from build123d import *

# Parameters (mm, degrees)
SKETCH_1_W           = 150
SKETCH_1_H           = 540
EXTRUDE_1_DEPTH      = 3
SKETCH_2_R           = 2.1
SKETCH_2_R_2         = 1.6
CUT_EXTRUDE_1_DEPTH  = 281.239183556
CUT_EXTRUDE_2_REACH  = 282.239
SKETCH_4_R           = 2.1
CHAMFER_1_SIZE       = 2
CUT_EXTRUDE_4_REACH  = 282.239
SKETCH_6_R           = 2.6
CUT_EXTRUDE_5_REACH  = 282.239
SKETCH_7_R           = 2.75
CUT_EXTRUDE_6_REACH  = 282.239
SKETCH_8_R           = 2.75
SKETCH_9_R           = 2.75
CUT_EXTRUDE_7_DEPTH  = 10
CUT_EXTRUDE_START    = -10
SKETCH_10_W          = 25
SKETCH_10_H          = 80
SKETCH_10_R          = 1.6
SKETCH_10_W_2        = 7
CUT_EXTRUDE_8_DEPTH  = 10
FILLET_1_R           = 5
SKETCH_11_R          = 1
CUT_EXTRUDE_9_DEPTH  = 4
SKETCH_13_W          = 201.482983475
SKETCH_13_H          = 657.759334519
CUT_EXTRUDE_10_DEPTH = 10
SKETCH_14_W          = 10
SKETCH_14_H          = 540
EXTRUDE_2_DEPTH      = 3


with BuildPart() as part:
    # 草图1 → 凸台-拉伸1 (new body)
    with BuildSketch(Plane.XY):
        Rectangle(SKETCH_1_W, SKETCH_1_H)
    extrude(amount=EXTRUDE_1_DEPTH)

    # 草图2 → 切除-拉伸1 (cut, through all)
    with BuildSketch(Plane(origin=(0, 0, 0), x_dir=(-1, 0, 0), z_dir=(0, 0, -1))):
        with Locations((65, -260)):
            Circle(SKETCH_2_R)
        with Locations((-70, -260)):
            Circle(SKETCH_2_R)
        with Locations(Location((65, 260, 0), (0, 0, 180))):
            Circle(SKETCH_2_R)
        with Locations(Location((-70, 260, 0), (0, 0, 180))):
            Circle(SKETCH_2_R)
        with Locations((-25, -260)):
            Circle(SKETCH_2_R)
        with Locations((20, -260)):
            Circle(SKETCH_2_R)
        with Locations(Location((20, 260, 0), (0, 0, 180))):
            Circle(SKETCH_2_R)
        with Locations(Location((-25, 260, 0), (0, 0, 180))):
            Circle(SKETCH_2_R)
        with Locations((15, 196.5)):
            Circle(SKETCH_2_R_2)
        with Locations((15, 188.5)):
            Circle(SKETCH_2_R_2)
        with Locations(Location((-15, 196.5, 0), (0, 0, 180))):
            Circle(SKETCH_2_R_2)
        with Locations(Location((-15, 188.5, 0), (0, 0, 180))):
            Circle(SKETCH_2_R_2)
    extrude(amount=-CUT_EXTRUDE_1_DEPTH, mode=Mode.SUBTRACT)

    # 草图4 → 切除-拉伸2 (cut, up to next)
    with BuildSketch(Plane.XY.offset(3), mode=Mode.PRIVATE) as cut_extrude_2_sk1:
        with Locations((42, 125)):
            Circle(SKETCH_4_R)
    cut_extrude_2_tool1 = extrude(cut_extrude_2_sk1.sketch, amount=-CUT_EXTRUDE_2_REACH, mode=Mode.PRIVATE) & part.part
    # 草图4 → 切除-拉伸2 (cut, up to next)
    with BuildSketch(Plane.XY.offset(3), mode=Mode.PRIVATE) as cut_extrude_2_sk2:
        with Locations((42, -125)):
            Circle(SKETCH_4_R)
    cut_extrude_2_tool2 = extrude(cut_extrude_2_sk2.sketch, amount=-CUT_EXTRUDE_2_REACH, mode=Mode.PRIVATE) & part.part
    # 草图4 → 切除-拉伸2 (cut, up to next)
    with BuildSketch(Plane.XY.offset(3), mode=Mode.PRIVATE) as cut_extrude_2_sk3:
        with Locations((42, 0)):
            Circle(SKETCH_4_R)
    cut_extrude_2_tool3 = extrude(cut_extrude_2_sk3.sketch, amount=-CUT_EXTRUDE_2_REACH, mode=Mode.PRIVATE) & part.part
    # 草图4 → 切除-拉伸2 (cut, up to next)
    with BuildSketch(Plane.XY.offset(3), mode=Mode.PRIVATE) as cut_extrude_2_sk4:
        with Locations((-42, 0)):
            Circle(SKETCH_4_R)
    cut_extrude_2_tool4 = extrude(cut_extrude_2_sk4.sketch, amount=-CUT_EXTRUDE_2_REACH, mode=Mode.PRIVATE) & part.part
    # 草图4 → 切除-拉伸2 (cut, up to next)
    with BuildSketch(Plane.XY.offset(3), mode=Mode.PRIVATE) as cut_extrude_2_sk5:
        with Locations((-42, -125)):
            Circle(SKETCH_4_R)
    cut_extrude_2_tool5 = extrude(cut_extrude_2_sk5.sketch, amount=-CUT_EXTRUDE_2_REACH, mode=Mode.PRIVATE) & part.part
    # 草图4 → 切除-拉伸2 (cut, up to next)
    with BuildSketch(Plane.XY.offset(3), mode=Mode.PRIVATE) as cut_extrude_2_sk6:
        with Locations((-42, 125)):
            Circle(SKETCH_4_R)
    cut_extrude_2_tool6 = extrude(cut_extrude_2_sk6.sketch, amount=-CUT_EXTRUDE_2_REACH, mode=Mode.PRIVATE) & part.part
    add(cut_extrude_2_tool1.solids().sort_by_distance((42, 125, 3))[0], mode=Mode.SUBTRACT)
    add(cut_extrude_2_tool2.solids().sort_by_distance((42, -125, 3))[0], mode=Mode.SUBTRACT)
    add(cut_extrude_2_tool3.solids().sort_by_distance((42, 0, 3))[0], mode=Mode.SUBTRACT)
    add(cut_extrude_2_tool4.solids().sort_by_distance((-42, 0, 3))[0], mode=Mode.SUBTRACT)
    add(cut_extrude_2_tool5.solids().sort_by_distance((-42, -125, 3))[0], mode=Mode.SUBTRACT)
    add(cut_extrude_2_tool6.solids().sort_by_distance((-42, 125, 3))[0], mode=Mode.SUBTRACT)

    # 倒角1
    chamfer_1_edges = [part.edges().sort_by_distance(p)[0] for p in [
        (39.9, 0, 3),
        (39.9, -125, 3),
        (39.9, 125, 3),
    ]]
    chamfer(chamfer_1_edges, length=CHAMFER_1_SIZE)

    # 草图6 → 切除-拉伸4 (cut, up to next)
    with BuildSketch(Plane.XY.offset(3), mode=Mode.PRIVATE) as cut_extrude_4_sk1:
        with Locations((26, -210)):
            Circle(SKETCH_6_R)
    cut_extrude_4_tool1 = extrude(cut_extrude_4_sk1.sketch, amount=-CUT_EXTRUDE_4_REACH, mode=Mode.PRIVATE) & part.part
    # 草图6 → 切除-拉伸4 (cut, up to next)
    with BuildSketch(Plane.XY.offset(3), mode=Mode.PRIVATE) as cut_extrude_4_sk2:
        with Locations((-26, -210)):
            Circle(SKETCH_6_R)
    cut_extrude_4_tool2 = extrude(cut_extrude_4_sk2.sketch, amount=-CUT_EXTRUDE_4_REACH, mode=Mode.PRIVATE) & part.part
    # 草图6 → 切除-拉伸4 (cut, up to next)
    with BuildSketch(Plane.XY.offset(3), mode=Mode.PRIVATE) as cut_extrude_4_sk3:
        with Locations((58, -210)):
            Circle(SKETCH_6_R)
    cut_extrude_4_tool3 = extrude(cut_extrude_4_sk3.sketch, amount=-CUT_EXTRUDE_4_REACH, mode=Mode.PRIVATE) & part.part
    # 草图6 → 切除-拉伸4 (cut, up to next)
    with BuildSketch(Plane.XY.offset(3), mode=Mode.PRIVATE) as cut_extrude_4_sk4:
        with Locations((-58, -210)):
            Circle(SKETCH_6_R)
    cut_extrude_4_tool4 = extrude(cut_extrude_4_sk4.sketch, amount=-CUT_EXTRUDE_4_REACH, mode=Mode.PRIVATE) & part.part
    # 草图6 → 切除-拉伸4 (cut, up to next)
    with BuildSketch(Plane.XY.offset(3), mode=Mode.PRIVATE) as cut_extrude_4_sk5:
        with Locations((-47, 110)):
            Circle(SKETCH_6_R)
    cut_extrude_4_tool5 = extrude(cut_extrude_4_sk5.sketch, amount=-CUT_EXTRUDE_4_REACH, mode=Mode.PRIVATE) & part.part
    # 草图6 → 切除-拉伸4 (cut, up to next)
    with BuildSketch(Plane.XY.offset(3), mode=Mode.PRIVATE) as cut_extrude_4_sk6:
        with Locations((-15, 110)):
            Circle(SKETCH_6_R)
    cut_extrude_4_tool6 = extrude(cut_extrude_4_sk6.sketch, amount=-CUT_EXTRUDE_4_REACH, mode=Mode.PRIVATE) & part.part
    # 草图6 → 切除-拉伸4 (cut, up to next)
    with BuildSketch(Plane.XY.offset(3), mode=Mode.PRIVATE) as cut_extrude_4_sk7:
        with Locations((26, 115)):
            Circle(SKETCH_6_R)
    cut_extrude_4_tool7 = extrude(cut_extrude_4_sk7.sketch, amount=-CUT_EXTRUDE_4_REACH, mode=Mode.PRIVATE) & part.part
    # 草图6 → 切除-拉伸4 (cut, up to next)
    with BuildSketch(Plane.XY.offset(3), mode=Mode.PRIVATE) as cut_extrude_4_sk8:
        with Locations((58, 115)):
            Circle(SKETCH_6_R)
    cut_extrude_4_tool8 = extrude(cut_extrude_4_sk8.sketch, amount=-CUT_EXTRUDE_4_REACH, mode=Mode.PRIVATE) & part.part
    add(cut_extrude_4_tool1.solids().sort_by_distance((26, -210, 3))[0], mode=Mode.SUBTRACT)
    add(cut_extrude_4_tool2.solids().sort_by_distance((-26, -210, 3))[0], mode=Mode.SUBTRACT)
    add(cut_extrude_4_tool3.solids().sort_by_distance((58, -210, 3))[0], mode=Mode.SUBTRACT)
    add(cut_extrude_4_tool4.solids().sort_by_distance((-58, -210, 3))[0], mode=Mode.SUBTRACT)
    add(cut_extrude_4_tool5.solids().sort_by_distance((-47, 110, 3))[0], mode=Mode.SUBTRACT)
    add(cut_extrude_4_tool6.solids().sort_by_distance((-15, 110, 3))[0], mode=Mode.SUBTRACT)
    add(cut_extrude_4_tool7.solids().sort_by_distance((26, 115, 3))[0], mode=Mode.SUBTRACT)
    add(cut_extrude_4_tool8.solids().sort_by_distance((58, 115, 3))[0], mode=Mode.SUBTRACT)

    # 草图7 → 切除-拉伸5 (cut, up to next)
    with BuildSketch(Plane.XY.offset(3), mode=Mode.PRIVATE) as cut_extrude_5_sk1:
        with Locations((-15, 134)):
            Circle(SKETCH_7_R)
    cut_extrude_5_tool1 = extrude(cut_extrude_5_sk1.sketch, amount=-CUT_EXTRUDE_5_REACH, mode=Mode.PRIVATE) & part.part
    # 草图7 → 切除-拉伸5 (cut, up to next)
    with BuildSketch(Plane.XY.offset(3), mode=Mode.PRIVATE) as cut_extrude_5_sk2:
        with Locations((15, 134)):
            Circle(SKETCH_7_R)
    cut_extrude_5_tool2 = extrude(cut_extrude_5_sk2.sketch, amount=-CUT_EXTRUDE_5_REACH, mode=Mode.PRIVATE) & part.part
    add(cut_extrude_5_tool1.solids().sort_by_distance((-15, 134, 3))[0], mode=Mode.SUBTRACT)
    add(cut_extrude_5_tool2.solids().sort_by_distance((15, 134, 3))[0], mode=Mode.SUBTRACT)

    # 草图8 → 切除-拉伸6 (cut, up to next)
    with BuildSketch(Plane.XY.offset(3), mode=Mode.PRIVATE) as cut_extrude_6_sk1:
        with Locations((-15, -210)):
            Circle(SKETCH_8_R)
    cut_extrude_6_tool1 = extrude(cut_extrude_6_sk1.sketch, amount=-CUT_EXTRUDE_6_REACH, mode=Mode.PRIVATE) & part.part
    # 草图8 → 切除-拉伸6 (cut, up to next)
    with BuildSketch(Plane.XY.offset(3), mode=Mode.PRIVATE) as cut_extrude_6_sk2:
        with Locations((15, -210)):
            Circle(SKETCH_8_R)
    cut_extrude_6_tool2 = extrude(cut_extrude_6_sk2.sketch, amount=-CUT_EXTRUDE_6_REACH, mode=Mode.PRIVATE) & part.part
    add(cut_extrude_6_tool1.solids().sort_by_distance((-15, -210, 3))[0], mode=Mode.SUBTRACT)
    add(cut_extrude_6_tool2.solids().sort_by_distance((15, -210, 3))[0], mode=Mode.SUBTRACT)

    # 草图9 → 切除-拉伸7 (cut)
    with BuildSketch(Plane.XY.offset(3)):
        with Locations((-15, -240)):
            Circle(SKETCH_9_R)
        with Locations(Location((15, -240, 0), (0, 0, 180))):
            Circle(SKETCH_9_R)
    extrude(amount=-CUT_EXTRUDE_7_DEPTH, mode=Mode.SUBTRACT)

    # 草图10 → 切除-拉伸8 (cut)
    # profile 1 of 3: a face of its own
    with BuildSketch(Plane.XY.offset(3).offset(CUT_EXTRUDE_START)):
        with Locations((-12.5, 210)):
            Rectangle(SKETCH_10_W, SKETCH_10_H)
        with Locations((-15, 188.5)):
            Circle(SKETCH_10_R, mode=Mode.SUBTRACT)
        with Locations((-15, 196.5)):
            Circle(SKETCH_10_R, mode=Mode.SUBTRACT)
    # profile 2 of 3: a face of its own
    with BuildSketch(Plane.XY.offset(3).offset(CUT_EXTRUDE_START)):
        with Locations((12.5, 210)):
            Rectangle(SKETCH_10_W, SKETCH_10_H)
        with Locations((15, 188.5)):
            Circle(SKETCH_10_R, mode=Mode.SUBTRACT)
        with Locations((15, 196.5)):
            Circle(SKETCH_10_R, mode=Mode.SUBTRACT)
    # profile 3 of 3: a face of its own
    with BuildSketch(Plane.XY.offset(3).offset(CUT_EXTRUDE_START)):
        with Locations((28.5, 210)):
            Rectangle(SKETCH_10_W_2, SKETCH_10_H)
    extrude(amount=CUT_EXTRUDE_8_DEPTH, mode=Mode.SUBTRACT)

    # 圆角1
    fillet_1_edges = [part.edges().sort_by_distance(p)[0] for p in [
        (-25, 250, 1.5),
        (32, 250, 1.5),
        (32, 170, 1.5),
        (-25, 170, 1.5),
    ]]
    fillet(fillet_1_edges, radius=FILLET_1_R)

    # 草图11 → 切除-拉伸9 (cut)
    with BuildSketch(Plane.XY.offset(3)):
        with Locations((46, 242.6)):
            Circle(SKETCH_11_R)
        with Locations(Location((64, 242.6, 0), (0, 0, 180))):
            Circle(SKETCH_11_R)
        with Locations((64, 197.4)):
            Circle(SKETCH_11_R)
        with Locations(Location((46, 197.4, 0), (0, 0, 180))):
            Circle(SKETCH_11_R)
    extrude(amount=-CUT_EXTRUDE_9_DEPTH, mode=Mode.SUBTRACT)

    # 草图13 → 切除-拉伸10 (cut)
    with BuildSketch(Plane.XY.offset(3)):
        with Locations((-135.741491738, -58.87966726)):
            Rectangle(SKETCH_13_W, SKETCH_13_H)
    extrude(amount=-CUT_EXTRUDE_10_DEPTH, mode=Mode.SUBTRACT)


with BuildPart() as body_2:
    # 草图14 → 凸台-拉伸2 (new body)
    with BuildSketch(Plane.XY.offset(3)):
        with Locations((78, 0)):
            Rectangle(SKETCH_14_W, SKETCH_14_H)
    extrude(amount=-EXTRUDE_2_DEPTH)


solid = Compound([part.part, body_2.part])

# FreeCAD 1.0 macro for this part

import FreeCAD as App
import Part
import Sketcher
from FreeCAD import Vector
Q = App.Units.Quantity


def edges_at(feature, points):
    """Names of the edges that pass closest to the given points."""
    edges = feature.Shape.Edges
    near = lambda p: min(range(len(edges)), key=lambda i: edges[i].distToShape(Part.Vertex(*p))[0])
    return sorted({f"Edge{near(p) + 1}" for p in points})

doc = App.newDocument("Part")
params = doc.addObject("Spreadsheet::Sheet", "Params")
for row, (alias, value) in enumerate([
    ("sketch1_width", "150 mm"),
    ("sketch1_height", "540 mm"),
    ("pad1_length", "3 mm"),
    ("sketch2_diameter", "4.2 mm"),
    ("sketch2_diameter2", "3.2 mm"),
    ("sketch3_diameter", "4.2 mm"),
    ("sketch4_diameter", "4.2 mm"),
    ("sketch5_diameter", "4.2 mm"),
    ("sketch6_diameter", "4.2 mm"),
    ("sketch7_diameter", "4.2 mm"),
    ("sketch8_diameter", "4.2 mm"),
    ("chamfer_size", "2 mm"),
    ("sketch9_diameter", "5.2 mm"),
    ("sketch10_diameter", "5.2 mm"),
    ("sketch11_diameter", "5.2 mm"),
    ("sketch12_diameter", "5.2 mm"),
    ("sketch13_diameter", "5.2 mm"),
    ("sketch14_diameter", "5.2 mm"),
    ("sketch15_diameter", "5.2 mm"),
    ("sketch16_diameter", "5.2 mm"),
    ("sketch17_diameter", "5.5 mm"),
    ("sketch18_diameter", "5.5 mm"),
    ("sketch19_diameter", "5.5 mm"),
    ("sketch20_diameter", "5.5 mm"),
    ("sketch21_diameter", "5.5 mm"),
    ("pocket20_length", "10 mm"),
    ("sketch22_diameter", "3.2 mm"),
    ("sketch22_width", "57 mm"),
    ("sketch22_height", "80 mm"),
    ("pocket21_length", "10 mm"),
    ("fillet_radius", "5 mm"),
    ("sketch23_diameter", "2 mm"),
    ("pocket22_length", "4 mm"),
    ("pocket23_length", "10 mm"),
    ("sketch25_width", "10 mm"),
    ("sketch25_height", "540 mm"),
    ("pad2_length", "3 mm"),
], start=1):
    params.set(f"A{row}", alias)
    params.set(f"B{row}", "=" + value)
    params.setAlias(f"B{row}", alias)

body = doc.addObject("PartDesign::Body", "Body")

# Sketch on XY plane
sketch1 = body.newObject("Sketcher::SketchObject", "Sketch")
sketch1.AttachmentSupport = (doc.getObject("XY_Plane"), [""])
sketch1.MapMode = "FlatFace"
sketch1.addGeometry([
    Part.LineSegment(Vector(-75, 270, 0), Vector(-75, -270, 0)),
    Part.LineSegment(Vector(-75, -270, 0), Vector(75, -270, 0)),
    Part.LineSegment(Vector(75, -270, 0), Vector(75, 270, 0)),
    Part.LineSegment(Vector(75, 270, 0), Vector(-75, 270, 0)),
], False)
sketch1.addConstraint([
    Sketcher.Constraint("Coincident", 0, 2, 1, 1),
    Sketcher.Constraint("Coincident", 1, 2, 2, 1),
    Sketcher.Constraint("Coincident", 2, 2, 3, 1),
    Sketcher.Constraint("Coincident", 3, 2, 0, 1),
    Sketcher.Constraint("Vertical", 0),
    Sketcher.Constraint("Horizontal", 1),
    Sketcher.Constraint("Vertical", 2),
    Sketcher.Constraint("Horizontal", 3),
    Sketcher.Constraint("Symmetric", 0, 2, 2, 2, -1, 1),
    Sketcher.Constraint("DistanceX", 1, 1, 1, 2, Q("150 mm")),
    Sketcher.Constraint("DistanceY", 0, 2, 0, 1, Q("540 mm")),
])
sketch1.setExpression("Constraints[9]", "Params.sketch1_width")
sketch1.setExpression("Constraints[10]", "Params.sketch1_height")
pad1 = body.newObject("PartDesign::Pad", "Pad")
pad1.Profile = sketch1
pad1.setExpression("Length", "Params.pad1_length")

# Sketch on XY plane
sketch2 = body.newObject("Sketcher::SketchObject", "Sketch001")
sketch2.AttachmentSupport = (doc.getObject("XY_Plane"), [""])
sketch2.MapMode = "FlatFace"
sketch2.addGeometry([
    Part.Circle(Vector(-65, -260, 0), Vector(0, 0, 1), 2.1),  # 0
    Part.Circle(Vector(70, -260, 0), Vector(0, 0, 1), 2.1),  # 1
    Part.Circle(Vector(-65, 260, 0), Vector(0, 0, 1), 2.1),  # 2
    Part.Circle(Vector(70, 260, 0), Vector(0, 0, 1), 2.1),  # 3
    Part.Circle(Vector(25, -260, 0), Vector(0, 0, 1), 2.1),  # 4
    Part.Circle(Vector(-20, -260, 0), Vector(0, 0, 1), 2.1),  # 5
    Part.Circle(Vector(-20, 260, 0), Vector(0, 0, 1), 2.1),  # 6
    Part.Circle(Vector(25, 260, 0), Vector(0, 0, 1), 2.1),  # 7
    Part.Circle(Vector(-15, 196.5, 0), Vector(0, 0, 1), 1.6),  # 8
    Part.Circle(Vector(-15, 188.5, 0), Vector(0, 0, 1), 1.6),  # 9
    Part.Circle(Vector(15, 196.5, 0), Vector(0, 0, 1), 1.6),  # 10
    Part.Circle(Vector(15, 188.5, 0), Vector(0, 0, 1), 1.6),  # 11
], False)
sketch2.addConstraint([
    Sketcher.Constraint("Equal", 0, 1),
    Sketcher.Constraint("Equal", 1, 2),
    Sketcher.Constraint("Equal", 2, 3),
    Sketcher.Constraint("Equal", 3, 4),
    Sketcher.Constraint("Equal", 4, 5),
    Sketcher.Constraint("Equal", 5, 6),
    Sketcher.Constraint("Equal", 6, 7),
    Sketcher.Constraint("Equal", 8, 9),
    Sketcher.Constraint("Equal", 9, 10),
    Sketcher.Constraint("Equal", 10, 11),
    Sketcher.Constraint("Symmetric", 8, 3, 10, 3, -2),
    Sketcher.Constraint("Symmetric", 9, 3, 11, 3, -2),
    Sketcher.Constraint("Symmetric", 0, 3, 2, 3, -1),
    Sketcher.Constraint("Symmetric", 1, 3, 3, 3, -1),
    Sketcher.Constraint("Symmetric", 5, 3, 6, 3, -1),
    Sketcher.Constraint("Symmetric", 4, 3, 7, 3, -1),
    Sketcher.Constraint("Horizontal", 0, 3, 1, 3),
    Sketcher.Constraint("Horizontal", 1, 3, 4, 3),
    Sketcher.Constraint("Horizontal", 4, 3, 5, 3),
    Sketcher.Constraint("Vertical", 8, 3, 9, 3),
    Sketcher.Constraint("Diameter", 0, Q("4.2 mm")),
    Sketcher.Constraint("Diameter", 8, Q("3.2 mm")),
    Sketcher.Constraint("DistanceX", 0, 3, -1, 1, Q("65 mm")),
    Sketcher.Constraint("DistanceY", 0, 3, -1, 1, Q("260 mm")),
    Sketcher.Constraint("DistanceX", -1, 1, 1, 3, Q("70 mm")),
    Sketcher.Constraint("DistanceX", -1, 1, 4, 3, Q("25 mm")),
    Sketcher.Constraint("DistanceX", 5, 3, -1, 1, Q("20 mm")),
    Sketcher.Constraint("DistanceX", 8, 3, -1, 1, Q("15 mm")),
    Sketcher.Constraint("DistanceY", 9, 3, 8, 3, Q("8 mm")),
    Sketcher.Constraint("DistanceY", -1, 1, 8, 3, Q("196.5 mm")),
])
sketch2.setExpression("Constraints[20]", "Params.sketch2_diameter")
sketch2.setExpression("Constraints[21]", "Params.sketch2_diameter2")
pocket1 = body.newObject("PartDesign::Pocket", "Pocket")
pocket1.Profile = sketch2
pocket1.Type = "ThroughAll"
pocket1.Reversed = True

# Sketch on XY plane
sketch3 = body.newObject("Sketcher::SketchObject", "Sketch002")
sketch3.AttachmentSupport = (doc.getObject("XY_Plane"), [""])
sketch3.MapMode = "FlatFace"
sketch3.AttachmentOffset = App.Placement(Vector(0, 0, 3), App.Rotation())
sketch3.addGeometry(Part.Circle(Vector(42, 125, 0), Vector(0, 0, 1), 2.1), False)
sketch3.addConstraint([
    Sketcher.Constraint("Diameter", 0, Q("4.2 mm")),
    Sketcher.Constraint("DistanceX", -1, 1, 0, 3, Q("42 mm")),
    Sketcher.Constraint("DistanceY", -1, 1, 0, 3, Q("125 mm")),
])
sketch3.setExpression("Constraints[0]", "Params.sketch3_diameter")
pocket2 = body.newObject("PartDesign::Pocket", "Pocket001")
pocket2.Profile = sketch3
pocket2.Type = "UpToFirst"

# Sketch on XY plane
sketch4 = body.newObject("Sketcher::SketchObject", "Sketch003")
sketch4.AttachmentSupport = (doc.getObject("XY_Plane"), [""])
sketch4.MapMode = "FlatFace"
sketch4.AttachmentOffset = App.Placement(Vector(0, 0, 3), App.Rotation())
sketch4.addGeometry(Part.Circle(Vector(42, -125, 0), Vector(0, 0, 1), 2.1), False)
sketch4.addConstraint([
    Sketcher.Constraint("Diameter", 0, Q("4.2 mm")),
    Sketcher.Constraint("DistanceX", -1, 1, 0, 3, Q("42 mm")),
    Sketcher.Constraint("DistanceY", 0, 3, -1, 1, Q("125 mm")),
])
sketch4.setExpression("Constraints[0]", "Params.sketch4_diameter")
pocket3 = body.newObject("PartDesign::Pocket", "Pocket002")
pocket3.Profile = sketch4
pocket3.Type = "UpToFirst"

# Sketch on XY plane
sketch5 = body.newObject("Sketcher::SketchObject", "Sketch004")
sketch5.AttachmentSupport = (doc.getObject("XY_Plane"), [""])
sketch5.MapMode = "FlatFace"
sketch5.AttachmentOffset = App.Placement(Vector(0, 0, 3), App.Rotation())
sketch5.addGeometry(Part.Circle(Vector(42, 0, 0), Vector(0, 0, 1), 2.1), False)
sketch5.addConstraint([
    Sketcher.Constraint("PointOnObject", 0, 3, -1),
    Sketcher.Constraint("Diameter", 0, Q("4.2 mm")),
    Sketcher.Constraint("DistanceX", -1, 1, 0, 3, Q("42 mm")),
])
sketch5.setExpression("Constraints[1]", "Params.sketch5_diameter")
pocket4 = body.newObject("PartDesign::Pocket", "Pocket003")
pocket4.Profile = sketch5
pocket4.Type = "UpToFirst"

# Sketch on XY plane
sketch6 = body.newObject("Sketcher::SketchObject", "Sketch005")
sketch6.AttachmentSupport = (doc.getObject("XY_Plane"), [""])
sketch6.MapMode = "FlatFace"
sketch6.AttachmentOffset = App.Placement(Vector(0, 0, 3), App.Rotation())
sketch6.addGeometry(Part.Circle(Vector(-42, 0, 0), Vector(0, 0, 1), 2.1), False)
sketch6.addConstraint([
    Sketcher.Constraint("PointOnObject", 0, 3, -1),
    Sketcher.Constraint("Diameter", 0, Q("4.2 mm")),
    Sketcher.Constraint("DistanceX", 0, 3, -1, 1, Q("42 mm")),
])
sketch6.setExpression("Constraints[1]", "Params.sketch6_diameter")
pocket5 = body.newObject("PartDesign::Pocket", "Pocket004")
pocket5.Profile = sketch6
pocket5.Type = "UpToFirst"

# Sketch on XY plane
sketch7 = body.newObject("Sketcher::SketchObject", "Sketch006")
sketch7.AttachmentSupport = (doc.getObject("XY_Plane"), [""])
sketch7.MapMode = "FlatFace"
sketch7.AttachmentOffset = App.Placement(Vector(0, 0, 3), App.Rotation())
sketch7.addGeometry(Part.Circle(Vector(-42, -125, 0), Vector(0, 0, 1), 2.1), False)
sketch7.addConstraint([
    Sketcher.Constraint("Diameter", 0, Q("4.2 mm")),
    Sketcher.Constraint("DistanceX", 0, 3, -1, 1, Q("42 mm")),
    Sketcher.Constraint("DistanceY", 0, 3, -1, 1, Q("125 mm")),
])
sketch7.setExpression("Constraints[0]", "Params.sketch7_diameter")
pocket6 = body.newObject("PartDesign::Pocket", "Pocket005")
pocket6.Profile = sketch7
pocket6.Type = "UpToFirst"

# Sketch on XY plane
sketch8 = body.newObject("Sketcher::SketchObject", "Sketch007")
sketch8.AttachmentSupport = (doc.getObject("XY_Plane"), [""])
sketch8.MapMode = "FlatFace"
sketch8.AttachmentOffset = App.Placement(Vector(0, 0, 3), App.Rotation())
sketch8.addGeometry(Part.Circle(Vector(-42, 125, 0), Vector(0, 0, 1), 2.1), False)
sketch8.addConstraint([
    Sketcher.Constraint("Diameter", 0, Q("4.2 mm")),
    Sketcher.Constraint("DistanceX", 0, 3, -1, 1, Q("42 mm")),
    Sketcher.Constraint("DistanceY", -1, 1, 0, 3, Q("125 mm")),
])
sketch8.setExpression("Constraints[0]", "Params.sketch8_diameter")
pocket7 = body.newObject("PartDesign::Pocket", "Pocket006")
pocket7.Profile = sketch8
pocket7.Type = "UpToFirst"
doc.recompute()

chamfer = body.newObject("PartDesign::Chamfer", "Chamfer")
chamfer.Base = (pocket7, edges_at(pocket7, [(39.9, 0, 3), (39.9, -125, 3), (39.9, 125, 3)]))
chamfer.setExpression("Size", "Params.chamfer_size")

# Sketch on XY plane
sketch9 = body.newObject("Sketcher::SketchObject", "Sketch008")
sketch9.AttachmentSupport = (doc.getObject("XY_Plane"), [""])
sketch9.MapMode = "FlatFace"
sketch9.AttachmentOffset = App.Placement(Vector(0, 0, 3), App.Rotation())
sketch9.addGeometry(Part.Circle(Vector(26, -210, 0), Vector(0, 0, 1), 2.6), False)
sketch9.addConstraint([
    Sketcher.Constraint("Diameter", 0, Q("5.2 mm")),
    Sketcher.Constraint("DistanceX", -1, 1, 0, 3, Q("26 mm")),
    Sketcher.Constraint("DistanceY", 0, 3, -1, 1, Q("210 mm")),
])
sketch9.setExpression("Constraints[0]", "Params.sketch9_diameter")
pocket8 = body.newObject("PartDesign::Pocket", "Pocket007")
pocket8.Profile = sketch9
pocket8.Type = "UpToFirst"

# Sketch on XY plane
sketch10 = body.newObject("Sketcher::SketchObject", "Sketch009")
sketch10.AttachmentSupport = (doc.getObject("XY_Plane"), [""])
sketch10.MapMode = "FlatFace"
sketch10.AttachmentOffset = App.Placement(Vector(0, 0, 3), App.Rotation())
sketch10.addGeometry(Part.Circle(Vector(-26, -210, 0), Vector(0, 0, 1), 2.6), False)
sketch10.addConstraint([
    Sketcher.Constraint("Diameter", 0, Q("5.2 mm")),
    Sketcher.Constraint("DistanceX", 0, 3, -1, 1, Q("26 mm")),
    Sketcher.Constraint("DistanceY", 0, 3, -1, 1, Q("210 mm")),
])
sketch10.setExpression("Constraints[0]", "Params.sketch10_diameter")
pocket9 = body.newObject("PartDesign::Pocket", "Pocket008")
pocket9.Profile = sketch10
pocket9.Type = "UpToFirst"

# Sketch on XY plane
sketch11 = body.newObject("Sketcher::SketchObject", "Sketch010")
sketch11.AttachmentSupport = (doc.getObject("XY_Plane"), [""])
sketch11.MapMode = "FlatFace"
sketch11.AttachmentOffset = App.Placement(Vector(0, 0, 3), App.Rotation())
sketch11.addGeometry(Part.Circle(Vector(58, -210, 0), Vector(0, 0, 1), 2.6), False)
sketch11.addConstraint([
    Sketcher.Constraint("Diameter", 0, Q("5.2 mm")),
    Sketcher.Constraint("DistanceX", -1, 1, 0, 3, Q("58 mm")),
    Sketcher.Constraint("DistanceY", 0, 3, -1, 1, Q("210 mm")),
])
sketch11.setExpression("Constraints[0]", "Params.sketch11_diameter")
pocket10 = body.newObject("PartDesign::Pocket", "Pocket009")
pocket10.Profile = sketch11
pocket10.Type = "UpToFirst"

# Sketch on XY plane
sketch12 = body.newObject("Sketcher::SketchObject", "Sketch011")
sketch12.AttachmentSupport = (doc.getObject("XY_Plane"), [""])
sketch12.MapMode = "FlatFace"
sketch12.AttachmentOffset = App.Placement(Vector(0, 0, 3), App.Rotation())
sketch12.addGeometry(Part.Circle(Vector(-58, -210, 0), Vector(0, 0, 1), 2.6), False)
sketch12.addConstraint([
    Sketcher.Constraint("Diameter", 0, Q("5.2 mm")),
    Sketcher.Constraint("DistanceX", 0, 3, -1, 1, Q("58 mm")),
    Sketcher.Constraint("DistanceY", 0, 3, -1, 1, Q("210 mm")),
])
sketch12.setExpression("Constraints[0]", "Params.sketch12_diameter")
pocket11 = body.newObject("PartDesign::Pocket", "Pocket010")
pocket11.Profile = sketch12
pocket11.Type = "UpToFirst"

# Sketch on XY plane
sketch13 = body.newObject("Sketcher::SketchObject", "Sketch012")
sketch13.AttachmentSupport = (doc.getObject("XY_Plane"), [""])
sketch13.MapMode = "FlatFace"
sketch13.AttachmentOffset = App.Placement(Vector(0, 0, 3), App.Rotation())
sketch13.addGeometry(Part.Circle(Vector(-47, 110, 0), Vector(0, 0, 1), 2.6), False)
sketch13.addConstraint([
    Sketcher.Constraint("Diameter", 0, Q("5.2 mm")),
    Sketcher.Constraint("DistanceX", 0, 3, -1, 1, Q("47 mm")),
    Sketcher.Constraint("DistanceY", -1, 1, 0, 3, Q("110 mm")),
])
sketch13.setExpression("Constraints[0]", "Params.sketch13_diameter")
pocket12 = body.newObject("PartDesign::Pocket", "Pocket011")
pocket12.Profile = sketch13
pocket12.Type = "UpToFirst"

# Sketch on XY plane
sketch14 = body.newObject("Sketcher::SketchObject", "Sketch013")
sketch14.AttachmentSupport = (doc.getObject("XY_Plane"), [""])
sketch14.MapMode = "FlatFace"
sketch14.AttachmentOffset = App.Placement(Vector(0, 0, 3), App.Rotation())
sketch14.addGeometry(Part.Circle(Vector(-15, 110, 0), Vector(0, 0, 1), 2.6), False)
sketch14.addConstraint([
    Sketcher.Constraint("Diameter", 0, Q("5.2 mm")),
    Sketcher.Constraint("DistanceX", 0, 3, -1, 1, Q("15 mm")),
    Sketcher.Constraint("DistanceY", -1, 1, 0, 3, Q("110 mm")),
])
sketch14.setExpression("Constraints[0]", "Params.sketch14_diameter")
pocket13 = body.newObject("PartDesign::Pocket", "Pocket012")
pocket13.Profile = sketch14
pocket13.Type = "UpToFirst"

# Sketch on XY plane
sketch15 = body.newObject("Sketcher::SketchObject", "Sketch014")
sketch15.AttachmentSupport = (doc.getObject("XY_Plane"), [""])
sketch15.MapMode = "FlatFace"
sketch15.AttachmentOffset = App.Placement(Vector(0, 0, 3), App.Rotation())
sketch15.addGeometry(Part.Circle(Vector(26, 115, 0), Vector(0, 0, 1), 2.6), False)
sketch15.addConstraint([
    Sketcher.Constraint("Diameter", 0, Q("5.2 mm")),
    Sketcher.Constraint("DistanceX", -1, 1, 0, 3, Q("26 mm")),
    Sketcher.Constraint("DistanceY", -1, 1, 0, 3, Q("115 mm")),
])
sketch15.setExpression("Constraints[0]", "Params.sketch15_diameter")
pocket14 = body.newObject("PartDesign::Pocket", "Pocket013")
pocket14.Profile = sketch15
pocket14.Type = "UpToFirst"

# Sketch on XY plane
sketch16 = body.newObject("Sketcher::SketchObject", "Sketch015")
sketch16.AttachmentSupport = (doc.getObject("XY_Plane"), [""])
sketch16.MapMode = "FlatFace"
sketch16.AttachmentOffset = App.Placement(Vector(0, 0, 3), App.Rotation())
sketch16.addGeometry(Part.Circle(Vector(58, 115, 0), Vector(0, 0, 1), 2.6), False)
sketch16.addConstraint([
    Sketcher.Constraint("Diameter", 0, Q("5.2 mm")),
    Sketcher.Constraint("DistanceX", -1, 1, 0, 3, Q("58 mm")),
    Sketcher.Constraint("DistanceY", -1, 1, 0, 3, Q("115 mm")),
])
sketch16.setExpression("Constraints[0]", "Params.sketch16_diameter")
pocket15 = body.newObject("PartDesign::Pocket", "Pocket014")
pocket15.Profile = sketch16
pocket15.Type = "UpToFirst"

# Sketch on XY plane
sketch17 = body.newObject("Sketcher::SketchObject", "Sketch016")
sketch17.AttachmentSupport = (doc.getObject("XY_Plane"), [""])
sketch17.MapMode = "FlatFace"
sketch17.AttachmentOffset = App.Placement(Vector(0, 0, 3), App.Rotation())
sketch17.addGeometry(Part.Circle(Vector(-15, 134, 0), Vector(0, 0, 1), 2.75), False)
sketch17.addConstraint([
    Sketcher.Constraint("Diameter", 0, Q("5.5 mm")),
    Sketcher.Constraint("DistanceX", 0, 3, -1, 1, Q("15 mm")),
    Sketcher.Constraint("DistanceY", -1, 1, 0, 3, Q("134 mm")),
])
sketch17.setExpression("Constraints[0]", "Params.sketch17_diameter")
pocket16 = body.newObject("PartDesign::Pocket", "Pocket015")
pocket16.Profile = sketch17
pocket16.Type = "UpToFirst"

# Sketch on XY plane
sketch18 = body.newObject("Sketcher::SketchObject", "Sketch017")
sketch18.AttachmentSupport = (doc.getObject("XY_Plane"), [""])
sketch18.MapMode = "FlatFace"
sketch18.AttachmentOffset = App.Placement(Vector(0, 0, 3), App.Rotation())
sketch18.addGeometry(Part.Circle(Vector(15, 134, 0), Vector(0, 0, 1), 2.75), False)
sketch18.addConstraint([
    Sketcher.Constraint("Diameter", 0, Q("5.5 mm")),
    Sketcher.Constraint("DistanceX", -1, 1, 0, 3, Q("15 mm")),
    Sketcher.Constraint("DistanceY", -1, 1, 0, 3, Q("134 mm")),
])
sketch18.setExpression("Constraints[0]", "Params.sketch18_diameter")
pocket17 = body.newObject("PartDesign::Pocket", "Pocket016")
pocket17.Profile = sketch18
pocket17.Type = "UpToFirst"

# Sketch on XY plane
sketch19 = body.newObject("Sketcher::SketchObject", "Sketch018")
sketch19.AttachmentSupport = (doc.getObject("XY_Plane"), [""])
sketch19.MapMode = "FlatFace"
sketch19.AttachmentOffset = App.Placement(Vector(0, 0, 3), App.Rotation())
sketch19.addGeometry(Part.Circle(Vector(-15, -210, 0), Vector(0, 0, 1), 2.75), False)
sketch19.addConstraint([
    Sketcher.Constraint("Diameter", 0, Q("5.5 mm")),
    Sketcher.Constraint("DistanceX", 0, 3, -1, 1, Q("15 mm")),
    Sketcher.Constraint("DistanceY", 0, 3, -1, 1, Q("210 mm")),
])
sketch19.setExpression("Constraints[0]", "Params.sketch19_diameter")
pocket18 = body.newObject("PartDesign::Pocket", "Pocket017")
pocket18.Profile = sketch19
pocket18.Type = "UpToFirst"

# Sketch on XY plane
sketch20 = body.newObject("Sketcher::SketchObject", "Sketch019")
sketch20.AttachmentSupport = (doc.getObject("XY_Plane"), [""])
sketch20.MapMode = "FlatFace"
sketch20.AttachmentOffset = App.Placement(Vector(0, 0, 3), App.Rotation())
sketch20.addGeometry(Part.Circle(Vector(15, -210, 0), Vector(0, 0, 1), 2.75), False)
sketch20.addConstraint([
    Sketcher.Constraint("Diameter", 0, Q("5.5 mm")),
    Sketcher.Constraint("DistanceX", -1, 1, 0, 3, Q("15 mm")),
    Sketcher.Constraint("DistanceY", 0, 3, -1, 1, Q("210 mm")),
])
sketch20.setExpression("Constraints[0]", "Params.sketch20_diameter")
pocket19 = body.newObject("PartDesign::Pocket", "Pocket018")
pocket19.Profile = sketch20
pocket19.Type = "UpToFirst"

# Sketch on XY plane
sketch21 = body.newObject("Sketcher::SketchObject", "Sketch020")
sketch21.AttachmentSupport = (doc.getObject("XY_Plane"), [""])
sketch21.MapMode = "FlatFace"
sketch21.AttachmentOffset = App.Placement(Vector(0, 0, 3), App.Rotation())
sketch21.addGeometry([
    Part.Circle(Vector(-15, -240, 0), Vector(0, 0, 1), 2.75),
    Part.Circle(Vector(15, -240, 0), Vector(0, 0, 1), 2.75),
], False)
sketch21.addConstraint([
    Sketcher.Constraint("Equal", 0, 1),
    Sketcher.Constraint("Symmetric", 0, 3, 1, 3, -2),
    Sketcher.Constraint("Diameter", 0, Q("5.5 mm")),
    Sketcher.Constraint("DistanceX", 0, 3, -1, 1, Q("15 mm")),
    Sketcher.Constraint("DistanceY", 0, 3, -1, 1, Q("240 mm")),
])
sketch21.setExpression("Constraints[2]", "Params.sketch21_diameter")
pocket20 = body.newObject("PartDesign::Pocket", "Pocket019")
pocket20.Profile = sketch21
pocket20.setExpression("Length", "Params.pocket20_length")

# Sketch on XY plane
sketch22 = body.newObject("Sketcher::SketchObject", "Sketch021")
sketch22.AttachmentSupport = (doc.getObject("XY_Plane"), [""])
sketch22.MapMode = "FlatFace"
sketch22.AttachmentOffset = App.Placement(Vector(0, 0, -7), App.Rotation())
sketch22.addGeometry([
    Part.LineSegment(Vector(-25, 250, 0), Vector(-25, 170, 0)),  # 0
    Part.LineSegment(Vector(-25, 170, 0), Vector(32, 170, 0)),  # 1
    Part.LineSegment(Vector(32, 170, 0), Vector(32, 250, 0)),  # 2
    Part.LineSegment(Vector(32, 250, 0), Vector(-25, 250, 0)),  # 3
    Part.Circle(Vector(-15, 188.5, 0), Vector(0, 0, 1), 1.6),  # 4
    Part.Circle(Vector(-15, 196.5, 0), Vector(0, 0, 1), 1.6),  # 5
    Part.Circle(Vector(15, 196.5, 0), Vector(0, 0, 1), 1.6),  # 6
    Part.Circle(Vector(15, 188.5, 0), Vector(0, 0, 1), 1.6),  # 7
], False)
sketch22.addConstraint([
    Sketcher.Constraint("Coincident", 0, 2, 1, 1),
    Sketcher.Constraint("Coincident", 1, 2, 2, 1),
    Sketcher.Constraint("Coincident", 2, 2, 3, 1),
    Sketcher.Constraint("Coincident", 3, 2, 0, 1),
    Sketcher.Constraint("Vertical", 0),
    Sketcher.Constraint("Horizontal", 1),
    Sketcher.Constraint("Vertical", 2),
    Sketcher.Constraint("Horizontal", 3),
    Sketcher.Constraint("Equal", 4, 5),
    Sketcher.Constraint("Equal", 5, 6),
    Sketcher.Constraint("Equal", 6, 7),
    Sketcher.Constraint("Symmetric", 5, 3, 6, 3, -2),
    Sketcher.Constraint("Symmetric", 4, 3, 7, 3, -2),
    Sketcher.Constraint("Vertical", 4, 3, 5, 3),
    Sketcher.Constraint("Diameter", 4, Q("3.2 mm")),
    Sketcher.Constraint("DistanceX", 1, 1, 1, 2, Q("57 mm")),
    Sketcher.Constraint("DistanceY", 0, 2, 0, 1, Q("80 mm")),
    Sketcher.Constraint("DistanceX", 4, 3, -1, 1, Q("15 mm")),
    Sketcher.Constraint("DistanceX", 0, 2, -1, 1, Q("25 mm")),
    Sketcher.Constraint("DistanceY", -1, 1, 0, 2, Q("170 mm")),
    Sketcher.Constraint("DistanceY", 4, 3, 5, 3, Q("8 mm")),
    Sketcher.Constraint("DistanceY", -1, 1, 4, 3, Q("188.5 mm")),
])
sketch22.setExpression("Constraints[14]", "Params.sketch22_diameter")
sketch22.setExpression("Constraints[15]", "Params.sketch22_width")
sketch22.setExpression("Constraints[16]", "Params.sketch22_height")
pocket21 = body.newObject("PartDesign::Pocket", "Pocket020")
pocket21.Profile = sketch22
pocket21.setExpression("Length", "Params.pocket21_length")
pocket21.Reversed = True
doc.recompute()

fillet = body.newObject("PartDesign::Fillet", "Fillet")
fillet.Base = (pocket21, edges_at(pocket21, [
    (-25, 250, 1.5),
    (32, 250, 1.5),
    (32, 170, 1.5),
    (-25, 170, 1.5),
]))
fillet.setExpression("Radius", "Params.fillet_radius")

# Sketch on XY plane
sketch23 = body.newObject("Sketcher::SketchObject", "Sketch022")
sketch23.AttachmentSupport = (doc.getObject("XY_Plane"), [""])
sketch23.MapMode = "FlatFace"
sketch23.AttachmentOffset = App.Placement(Vector(0, 0, 3), App.Rotation())
sketch23.addGeometry([
    Part.Circle(Vector(46, 242.6, 0), Vector(0, 0, 1), 1),
    Part.Circle(Vector(64, 242.6, 0), Vector(0, 0, 1), 1),
    Part.Circle(Vector(64, 197.4, 0), Vector(0, 0, 1), 1),
    Part.Circle(Vector(46, 197.4, 0), Vector(0, 0, 1), 1),
], False)
sketch23.addConstraint([
    Sketcher.Constraint("Equal", 0, 1),
    Sketcher.Constraint("Equal", 1, 2),
    Sketcher.Constraint("Equal", 2, 3),
    Sketcher.Constraint("Horizontal", 0, 3, 1, 3),
    Sketcher.Constraint("Horizontal", 2, 3, 3, 3),
    Sketcher.Constraint("Vertical", 1, 3, 2, 3),
    Sketcher.Constraint("Vertical", 0, 3, 3, 3),
    Sketcher.Constraint("Diameter", 0, Q("2 mm")),
    Sketcher.Constraint("DistanceX", -1, 1, 0, 3, Q("46 mm")),
    Sketcher.Constraint("DistanceX", -1, 1, 1, 3, Q("64 mm")),
    Sketcher.Constraint("DistanceY", -1, 1, 0, 3, Q("242.6 mm")),
    Sketcher.Constraint("DistanceY", -1, 1, 2, 3, Q("197.4 mm")),
])
sketch23.setExpression("Constraints[7]", "Params.sketch23_diameter")
pocket22 = body.newObject("PartDesign::Pocket", "Pocket021")
pocket22.Profile = sketch23
pocket22.setExpression("Length", "Params.pocket22_length")

# Sketch on XY plane
sketch24 = body.newObject("Sketcher::SketchObject", "Sketch023")
sketch24.AttachmentSupport = (doc.getObject("XY_Plane"), [""])
sketch24.MapMode = "FlatFace"
sketch24.AttachmentOffset = App.Placement(Vector(0, 0, 3), App.Rotation())
sketch24.addGeometry([
    Part.LineSegment(Vector(-236.482983, 270, 0), Vector(-236.482983, -387.759335, 0)),
    Part.LineSegment(Vector(-236.482983, -387.759335, 0), Vector(-35, -387.759335, 0)),
    Part.LineSegment(Vector(-35, -387.759335, 0), Vector(-35, 270, 0)),
    Part.LineSegment(Vector(-35, 270, 0), Vector(-236.482983, 270, 0)),
], False)
sketch24.addConstraint([
    Sketcher.Constraint("Coincident", 0, 2, 1, 1),
    Sketcher.Constraint("Coincident", 1, 2, 2, 1),
    Sketcher.Constraint("Coincident", 2, 2, 3, 1),
    Sketcher.Constraint("Coincident", 3, 2, 0, 1),
    Sketcher.Constraint("Vertical", 0),
    Sketcher.Constraint("Horizontal", 1),
    Sketcher.Constraint("Vertical", 2),
    Sketcher.Constraint("Horizontal", 3),
    Sketcher.Constraint("DistanceX", 1, 2, -1, 1, Q("35 mm")),
    Sketcher.Constraint("DistanceY", -1, 1, 2, 2, Q("270 mm")),
    Sketcher.Constraint("DistanceX", 1, 1, 1, 2, Q("201.482983 mm")),
    Sketcher.Constraint("DistanceY", 0, 2, 0, 1, Q("657.759335 mm")),
])
pocket23 = body.newObject("PartDesign::Pocket", "Pocket022")
pocket23.Profile = sketch24
pocket23.setExpression("Length", "Params.pocket23_length")
body2 = doc.addObject("PartDesign::Body", "Body001")

# Sketch on XY plane
sketch25 = body2.newObject("Sketcher::SketchObject", "Sketch024")
sketch25.AttachmentSupport = (doc.getObject("XY_Plane001"), [""])
sketch25.MapMode = "FlatFace"
sketch25.AttachmentOffset = App.Placement(Vector(0, 0, 3), App.Rotation())
sketch25.addGeometry([
    Part.LineSegment(Vector(73, 270, 0), Vector(73, -270, 0)),
    Part.LineSegment(Vector(73, -270, 0), Vector(83, -270, 0)),
    Part.LineSegment(Vector(83, -270, 0), Vector(83, 270, 0)),
    Part.LineSegment(Vector(83, 270, 0), Vector(73, 270, 0)),
], False)
sketch25.addConstraint([
    Sketcher.Constraint("Coincident", 0, 2, 1, 1),
    Sketcher.Constraint("Coincident", 1, 2, 2, 1),
    Sketcher.Constraint("Coincident", 2, 2, 3, 1),
    Sketcher.Constraint("Coincident", 3, 2, 0, 1),
    Sketcher.Constraint("Vertical", 0),
    Sketcher.Constraint("Horizontal", 1),
    Sketcher.Constraint("Vertical", 2),
    Sketcher.Constraint("Horizontal", 3),
    Sketcher.Constraint("DistanceX", 1, 1, 1, 2, Q("10 mm")),
    Sketcher.Constraint("DistanceY", 0, 2, 0, 1, Q("540 mm")),
    Sketcher.Constraint("DistanceX", -1, 1, 0, 2, Q("73 mm")),
    Sketcher.Constraint("DistanceY", 0, 2, -1, 1, Q("270 mm")),
])
sketch25.setExpression("Constraints[8]", "Params.sketch25_width")
sketch25.setExpression("Constraints[9]", "Params.sketch25_height")
pad2 = body2.newObject("PartDesign::Pad", "Pad001")
pad2.Profile = sketch25
pad2.setExpression("Length", "Params.pad2_length")
pad2.Reversed = True

doc.recompute()
